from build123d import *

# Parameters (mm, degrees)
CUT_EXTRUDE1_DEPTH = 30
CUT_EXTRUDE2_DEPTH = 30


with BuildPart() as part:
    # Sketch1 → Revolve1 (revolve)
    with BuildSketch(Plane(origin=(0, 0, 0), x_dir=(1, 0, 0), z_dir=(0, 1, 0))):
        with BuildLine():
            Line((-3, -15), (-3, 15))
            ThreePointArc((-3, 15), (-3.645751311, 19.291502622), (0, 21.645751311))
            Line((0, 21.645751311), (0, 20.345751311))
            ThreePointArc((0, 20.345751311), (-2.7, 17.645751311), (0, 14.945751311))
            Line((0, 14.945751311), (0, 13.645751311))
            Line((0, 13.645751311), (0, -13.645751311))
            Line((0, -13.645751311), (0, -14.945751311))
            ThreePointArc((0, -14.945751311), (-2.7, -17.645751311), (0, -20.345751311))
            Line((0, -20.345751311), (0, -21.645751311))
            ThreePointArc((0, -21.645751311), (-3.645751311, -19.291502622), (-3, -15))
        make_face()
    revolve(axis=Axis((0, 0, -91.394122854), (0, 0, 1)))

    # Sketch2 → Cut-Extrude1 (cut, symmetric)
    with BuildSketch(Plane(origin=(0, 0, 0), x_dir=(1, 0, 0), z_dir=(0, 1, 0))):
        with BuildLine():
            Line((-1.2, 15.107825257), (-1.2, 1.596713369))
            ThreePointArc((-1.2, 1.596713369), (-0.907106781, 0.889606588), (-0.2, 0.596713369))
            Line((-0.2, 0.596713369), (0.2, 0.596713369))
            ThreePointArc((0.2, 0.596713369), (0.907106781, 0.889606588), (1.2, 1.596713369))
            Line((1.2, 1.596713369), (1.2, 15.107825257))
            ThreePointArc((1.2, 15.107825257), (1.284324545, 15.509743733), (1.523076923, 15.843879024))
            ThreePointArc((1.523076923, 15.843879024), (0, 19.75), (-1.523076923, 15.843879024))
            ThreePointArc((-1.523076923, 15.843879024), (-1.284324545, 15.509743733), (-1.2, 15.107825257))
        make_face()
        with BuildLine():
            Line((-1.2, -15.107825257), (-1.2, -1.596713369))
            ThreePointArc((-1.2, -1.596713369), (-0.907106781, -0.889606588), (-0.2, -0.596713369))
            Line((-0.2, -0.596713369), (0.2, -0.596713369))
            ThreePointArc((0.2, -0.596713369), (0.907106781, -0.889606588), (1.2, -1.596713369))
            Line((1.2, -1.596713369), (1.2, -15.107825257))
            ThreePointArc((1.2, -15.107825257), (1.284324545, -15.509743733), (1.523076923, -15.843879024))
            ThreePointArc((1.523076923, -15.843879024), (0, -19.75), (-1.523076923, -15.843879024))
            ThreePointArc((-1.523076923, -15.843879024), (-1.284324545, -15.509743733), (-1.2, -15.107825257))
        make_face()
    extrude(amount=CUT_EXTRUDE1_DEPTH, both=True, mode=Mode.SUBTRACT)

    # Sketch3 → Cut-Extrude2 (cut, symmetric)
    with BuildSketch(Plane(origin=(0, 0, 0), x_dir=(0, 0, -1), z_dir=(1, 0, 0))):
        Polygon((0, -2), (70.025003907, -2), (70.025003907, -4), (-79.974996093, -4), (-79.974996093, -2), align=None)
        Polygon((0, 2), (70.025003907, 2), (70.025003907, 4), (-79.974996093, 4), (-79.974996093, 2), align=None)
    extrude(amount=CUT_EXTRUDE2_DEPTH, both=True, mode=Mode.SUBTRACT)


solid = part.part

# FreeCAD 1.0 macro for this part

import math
import FreeCAD as App
import Part
import Sketcher


def add_polygon(sketch, points):
    """Adds a closed chain of lines whose ends are joined by coincident constraints."""
    first, n = sketch.GeometryCount, len(points)
    for a, b in zip(points, points[1:] + points[:1]):
        sketch.addGeometry(Part.LineSegment(App.Vector(*a, 0), App.Vector(*b, 0)), False)
    for i in range(n):
        sketch.addConstraint(Sketcher.Constraint("Coincident", first + i, 2, first + (i + 1) % n, 1))

doc = App.newDocument("Part")
body = doc.addObject("PartDesign::Body", "Body")

sketch1 = body.newObject("Sketcher::SketchObject", "Sketch")
sketch1.AttachmentSupport = (doc.getObject("XZ_Plane"), [""])
sketch1.MapMode = "FlatFace"
sketch1.addGeometry(Part.LineSegment(App.Vector(-3, -15, 0), App.Vector(-3, 15, 0)), False)
sketch1.addGeometry(Part.ArcOfCircle(Part.Circle(App.Vector(0, 17.6, 0), App.Vector(0, 0, 1), 4), math.radians(90), math.radians(221)), False)
sketch1.addGeometry(Part.LineSegment(App.Vector(0, 21.6, 0), App.Vector(0, 20.3, 0)), False)
sketch1.addGeometry(Part.ArcOfCircle(Part.Circle(App.Vector(0, 17.6, 0), App.Vector(0, 0, 1), 2.7), math.radians(90), math.radians(270)), False)
sketch1.addGeometry(Part.LineSegment(App.Vector(0, 14.9, 0), App.Vector(0, -14.9, 0)), False)
sketch1.addGeometry(Part.ArcOfCircle(Part.Circle(App.Vector(0, -17.6, 0), App.Vector(0, 0, 1), 2.7), math.radians(90), math.radians(270)), False)
sketch1.addGeometry(Part.LineSegment(App.Vector(0, -20.3, 0), App.Vector(0, -21.6, 0)), False)
sketch1.addGeometry(Part.ArcOfCircle(Part.Circle(App.Vector(0, -17.6, 0), App.Vector(0, 0, 1), 4), math.radians(139), math.radians(270)), False)
sketch1.addConstraint(Sketcher.Constraint("Coincident", 0, 2, 1, 2))
sketch1.addConstraint(Sketcher.Constraint("Coincident", 1, 1, 2, 1))
sketch1.addConstraint(Sketcher.Constraint("Coincident", 2, 2, 3, 1))
sketch1.addConstraint(Sketcher.Constraint("Coincident", 3, 2, 4, 1))
sketch1.addConstraint(Sketcher.Constraint("Coincident", 4, 2, 5, 1))
sketch1.addConstraint(Sketcher.Constraint("Coincident", 5, 2, 6, 1))
sketch1.addConstraint(Sketcher.Constraint("Coincident", 6, 2, 7, 2))
sketch1.addConstraint(Sketcher.Constraint("Coincident", 7, 1, 0, 1))
sketch1.addConstraint(Sketcher.Constraint("Vertical", 0))
sketch1.addConstraint(Sketcher.Constraint("Vertical", 2))
sketch1.addConstraint(Sketcher.Constraint("Vertical", 4))
sketch1.addConstraint(Sketcher.Constraint("Vertical", 6))
sketch1.addConstraint(Sketcher.Constraint("Coincident", 3, 3, 1, 3))
sketch1.addConstraint(Sketcher.Constraint("Coincident", 7, 3, 5, 3))
sketch1.addConstraint(Sketcher.Constraint("Equal", 3, 5))
sketch1.addConstraint(Sketcher.Constraint("Equal", 1, 7))
sketch1.addConstraint(Sketcher.Constraint("Symmetric", 1, 3, 5, 3, -1, 1))
sketch1.addConstraint(Sketcher.Constraint("PointOnObject", 1, 3, -2))
sketch1.addConstraint(Sketcher.Constraint("PointOnObject", 1, 1, -2))
sketch1.addConstraint(Sketcher.Constraint("PointOnObject", 3, 2, -2))
sketch1.addConstraint(Sketcher.Constraint("PointOnObject", 5, 2, -2))
sketch1.addConstraint(Sketcher.Constraint("Radius", 1, 4.0))
sketch1.addConstraint(Sketcher.Constraint("Radius", 3, 2.7))
sketch1.addConstraint(Sketcher.Constraint("DistanceY", 0, 1, 0, 2, 30.0))
sketch1.addConstraint(Sketcher.Constraint("DistanceX", 0, 2, -1, 1, 3.0))
revolution = body.newObject("PartDesign::Revolution", "Revolution")
revolution.Profile = sketch1
revolution.ReferenceAxis = (sketch1, ["V_Axis"])
revolution.Angle = 360

sketch2 = body.newObject("Sketcher::SketchObject", "Sketch001")
sketch2.AttachmentSupport = (doc.getObject("XZ_Plane"), [""])
sketch2.MapMode = "FlatFace"
sketch2.addGeometry(Part.LineSegment(App.Vector(-1.2, -15.11, 0), App.Vector(-1.2, -1.6, 0)), False)
sketch2.addGeometry(Part.ArcOfCircle(Part.Circle(App.Vector(-0.2, -1.6, 0), App.Vector(0, 0, 1), 1), math.radians(90), math.radians(180)), False)
sketch2.addGeometry(Part.LineSegment(App.Vector(-0.2, -0.6, 0), App.Vector(0.2, -0.6, 0)), False)
sketch2.addGeometry(Part.ArcOfCircle(Part.Circle(App.Vector(0.2, -1.6, 0), App.Vector(0, 0, 1), 1), math.radians(0), math.radians(90)), False)
sketch2.addGeometry(Part.LineSegment(App.Vector(1.2, -1.6, 0), App.Vector(1.2, -15.11, 0)), False)
sketch2.addGeometry(Part.ArcOfCircle(Part.Circle(App.Vector(2.2, -15.11, 0), App.Vector(0, 0, 1), 1), math.radians(180), math.radians(227)), False)
sketch2.addGeometry(Part.ArcOfCircle(Part.Circle(App.Vector(0, -17.5, 0), App.Vector(0, 0, 1), 2.25), math.radians(133), math.radians(407)), False)
sketch2.addGeometry(Part.ArcOfCircle(Part.Circle(App.Vector(-2.2, -15.11, 0), App.Vector(0, 0, 1), 1), math.radians(-47), math.radians(0)), False)
sketch2.addGeometry(Part.LineSegment(App.Vector(-1.2, 1.6, 0), App.Vector(-1.2, 15.11, 0)), False)
sketch2.addGeometry(Part.ArcOfCircle(Part.Circle(App.Vector(-2.2, 15.11, 0), App.Vector(0, 0, 1), 1), math.radians(0), math.radians(47)), False)
sketch2.addGeometry(Part.ArcOfCircle(Part.Circle(App.Vector(0, 17.5, 0), App.Vector(0, 0, 1), 2.25), math.radians(-47), math.radians(227)), False)
sketch2.addGeometry(Part.ArcOfCircle(Part.Circle(App.Vector(2.2, 15.11, 0), App.Vector(0, 0, 1), 1), math.radians(133), math.radians(180)), False)
sketch2.addGeometry(Part.LineSegment(App.Vector(1.2, 15.11, 0), App.Vector(1.2, 1.6, 0)), False)
sketch2.addGeometry(Part.ArcOfCircle(Part.Circle(App.Vector(0.2, 1.6, 0), App.Vector(0, 0, 1), 1), math.radians(-90), math.radians(0)), False)
sketch2.addGeometry(Part.LineSegment(App.Vector(0.2, 0.6, 0), App.Vector(-0.2, 0.6, 0)), False)
sketch2.addGeometry(Part.ArcOfCircle(Part.Circle(App.Vector(-0.2, 1.6, 0), App.Vector(0, 0, 1), 1), math.radians(-180), math.radians(-90)), False)
sketch2.addConstraint(Sketcher.Constraint("Tangent", 0, 2, 1, 2))
sketch2.addConstraint(Sketcher.Constraint("Tangent", 1, 1, 2, 1))
sketch2.addConstraint(Sketcher.Constraint("Tangent", 2, 2, 3, 2))
sketch2.addConstraint(Sketcher.Constraint("Tangent", 3, 1, 4, 1))
sketch2.addConstraint(Sketcher.Constraint("Tangent", 4, 2, 5, 1))
sketch2.addConstraint(Sketcher.Constraint("Tangent", 5, 2, 6, 2))
sketch2.addConstraint(Sketcher.Constraint("Tangent", 6, 1, 7, 1))
sketch2.addConstraint(Sketcher.Constraint("Tangent", 7, 2, 0, 1))
sketch2.addConstraint(Sketcher.Constraint("Tangent", 8, 2, 9, 1))
sketch2.addConstraint(Sketcher.Constraint("Tangent", 9, 2, 10, 2))
sketch2.addConstraint(Sketcher.Constraint("Tangent", 10, 1, 11, 1))
sketch2.addConstraint(Sketcher.Constraint("Tangent", 11, 2, 12, 1))
sketch2.addConstraint(Sketcher.Constraint("Tangent", 12, 2, 13, 2))
sketch2.addConstraint(Sketcher.Constraint("Tangent", 13, 1, 14, 1))
sketch2.addConstraint(Sketcher.Constraint("Tangent", 14, 2, 15, 2))
sketch2.addConstraint(Sketcher.Constraint("Tangent", 15, 1, 8, 1))
sketch2.addConstraint(Sketcher.Constraint("Vertical", 0))
sketch2.addConstraint(Sketcher.Constraint("Horizontal", 2))
sketch2.addConstraint(Sketcher.Constraint("Vertical", 4))
sketch2.addConstraint(Sketcher.Constraint("Vertical", 8))
sketch2.addConstraint(Sketcher.Constraint("Vertical", 12))
sketch2.addConstraint(Sketcher.Constraint("Horizontal", 14))
sketch2.addConstraint(Sketcher.Constraint("Equal", 1, 3))
sketch2.addConstraint(Sketcher.Constraint("Equal", 3, 5))
sketch2.addConstraint(Sketcher.Constraint("Equal", 5, 7))
sketch2.addConstraint(Sketcher.Constraint("Equal", 7, 9))
sketch2.addConstraint(Sketcher.Constraint("Equal", 6, 10))
sketch2.addConstraint(Sketcher.Constraint("Equal", 9, 11))
sketch2.addConstraint(Sketcher.Constraint("Equal", 11, 13))
sketch2.addConstraint(Sketcher.Constraint("Equal", 13, 15))
sketch2.addConstraint(Sketcher.Constraint("Symmetric", 5, 3, 9, 3, -1, 1))
sketch2.addConstraint(Sketcher.Constraint("Symmetric", 7, 3, 11, 3, -1, 1))
sketch2.addConstraint(Sketcher.Constraint("Symmetric", 5, 3, 7, 3, -2))
sketch2.addConstraint(Sketcher.Constraint("Equal", 4, 8))
sketch2.addConstraint(Sketcher.Constraint("Radius", 1, 1.0))
sketch2.addConstraint(Sketcher.Constraint("Radius", 6, 2.25))
sketch2.addConstraint(Sketcher.Constraint("DistanceX", 2, 1, 2, 2, 0.4))
sketch2.addConstraint(Sketcher.Constraint("DistanceY", 6, 3, -1, 1, 17.5))
sketch2.addConstraint(Sketcher.Constraint("DistanceY", 0, 1, 0, 2, 13.511112))
pocket1 = body.newObject("PartDesign::Pocket", "Pocket")
pocket1.Profile = sketch2
pocket1.Length = 60
pocket1.Midplane = True

sketch3 = body.newObject("Sketcher::SketchObject", "Sketch002")
sketch3.AttachmentSupport = (doc.getObject("YZ_Plane"), [""])
sketch3.MapMode = "FlatFace"
add_polygon(sketch3, [(-2, -70), (-2, 80), (-4, 80), (-4, -70)])
add_polygon(sketch3, [(2, -70), (4, -70), (4, 80), (2, 80)])
sketch3.addConstraint(Sketcher.Constraint("Vertical", 0))
sketch3.addConstraint(Sketcher.Constraint("Horizontal", 1))
sketch3.addConstraint(Sketcher.Constraint("Vertical", 2))
sketch3.addConstraint(Sketcher.Constraint("Horizontal", 3))
sketch3.addConstraint(Sketcher.Constraint("Horizontal", 4))
sketch3.addConstraint(Sketcher.Constraint("Vertical", 5))
sketch3.addConstraint(Sketcher.Constraint("Horizontal", 6))
sketch3.addConstraint(Sketcher.Constraint("Vertical", 7))
sketch3.addConstraint(Sketcher.Constraint("Symmetric", 2, 2, 4, 2, -2))
sketch3.addConstraint(Sketcher.Constraint("Symmetric", 0, 2, 6, 2, -2))
sketch3.addConstraint(Sketcher.Constraint("DistanceX", 1, 2, 1, 1, 2.0))
sketch3.addConstraint(Sketcher.Constraint("DistanceY", 0, 1, 0, 2, 150.0))
sketch3.addConstraint(Sketcher.Constraint("DistanceX", 0, 2, -1, 1, 2.0))
sketch3.addConstraint(Sketcher.Constraint("DistanceY", -1, 1, 0, 2, 79.974996))
pocket2 = body.newObject("PartDesign::Pocket", "Pocket001")
pocket2.Profile = sketch3
pocket2.Length = 60
pocket2.Midplane = True

doc.recompute()
